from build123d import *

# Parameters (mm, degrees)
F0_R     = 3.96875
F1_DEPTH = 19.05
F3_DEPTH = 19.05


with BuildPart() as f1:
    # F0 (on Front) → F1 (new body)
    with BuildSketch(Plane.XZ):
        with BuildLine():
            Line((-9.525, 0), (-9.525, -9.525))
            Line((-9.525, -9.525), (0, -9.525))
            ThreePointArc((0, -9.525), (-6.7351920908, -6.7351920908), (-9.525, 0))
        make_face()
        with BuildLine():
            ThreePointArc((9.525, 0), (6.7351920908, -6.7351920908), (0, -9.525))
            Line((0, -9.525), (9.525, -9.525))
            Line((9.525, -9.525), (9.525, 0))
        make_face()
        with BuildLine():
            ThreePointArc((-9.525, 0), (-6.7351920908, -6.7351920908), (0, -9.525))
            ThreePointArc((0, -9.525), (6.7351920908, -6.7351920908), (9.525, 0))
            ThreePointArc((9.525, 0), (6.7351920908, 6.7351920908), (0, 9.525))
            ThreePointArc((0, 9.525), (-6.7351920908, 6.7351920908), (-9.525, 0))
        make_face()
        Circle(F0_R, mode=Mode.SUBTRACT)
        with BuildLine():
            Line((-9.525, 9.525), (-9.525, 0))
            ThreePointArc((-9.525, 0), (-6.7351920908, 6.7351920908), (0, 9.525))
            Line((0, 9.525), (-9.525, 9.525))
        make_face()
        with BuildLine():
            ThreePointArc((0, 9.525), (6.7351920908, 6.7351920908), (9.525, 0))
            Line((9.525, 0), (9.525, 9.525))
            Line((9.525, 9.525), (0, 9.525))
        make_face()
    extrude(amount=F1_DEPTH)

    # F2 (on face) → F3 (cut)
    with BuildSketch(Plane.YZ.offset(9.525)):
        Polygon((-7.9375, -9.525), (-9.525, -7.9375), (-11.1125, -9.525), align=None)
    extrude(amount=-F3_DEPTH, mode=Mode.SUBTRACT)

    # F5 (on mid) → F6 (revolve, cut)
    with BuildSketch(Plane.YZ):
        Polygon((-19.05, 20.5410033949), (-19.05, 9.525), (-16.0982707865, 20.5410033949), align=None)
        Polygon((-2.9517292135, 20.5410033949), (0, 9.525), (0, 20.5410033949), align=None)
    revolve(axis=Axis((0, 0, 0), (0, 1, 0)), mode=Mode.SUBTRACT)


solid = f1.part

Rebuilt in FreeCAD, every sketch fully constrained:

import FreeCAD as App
import Part
import Sketcher
from FreeCAD import Vector
Q = App.Units.Quantity


def add_polygon(sketch, points):
    """Adds a closed chain of lines whose ends are joined by coincident constraints."""
    first, n = sketch.GeometryCount, len(points)
    for a, b in zip(points, points[1:] + points[:1]):
        sketch.addGeometry(Part.LineSegment(App.Vector(*a, 0), App.Vector(*b, 0)), False)
    for i in range(n):
        sketch.addConstraint(Sketcher.Constraint("Coincident", first + i, 2, first + (i + 1) % n, 1))

doc = App.newDocument("Part")
body = doc.addObject("PartDesign::Body", "Body")

sketch1 = body.newObject("Sketcher::SketchObject", "Sketch")
sketch1.AttachmentSupport = (doc.getObject("XZ_Plane"), [""])
sketch1.MapMode = "FlatFace"
add_polygon(sketch1, [(-9.5, -9.5), (9.5, -9.5), (9.5, 9.5), (-9.5, 9.5)])
sketch1.addGeometry(Part.Circle(Vector(0, 0, 0), Vector(0, 0, 1), 4), False)
sketch1.addConstraint([
    Sketcher.Constraint("Horizontal", 0),
    Sketcher.Constraint("Vertical", 1),
    Sketcher.Constraint("Horizontal", 2),
    Sketcher.Constraint("Vertical", 3),
    Sketcher.Constraint("Coincident", 4, 3, -1, 1),
    Sketcher.Constraint("Symmetric", 0, 2, 2, 2, -1, 1),
    Sketcher.Constraint("Equal", 2, 1),
    Sketcher.Constraint("Diameter", 4, Q("0.3125 in")),
    Sketcher.Constraint("DistanceX", 0, 1, 0, 2, Q("0.75 in")),
])
pad1 = body.newObject("PartDesign::Pad", "Pad")
pad1.Profile = sketch1
pad1.Length = Q("0.75 in")

sketch2 = body.newObject("Sketcher::SketchObject", "Sketch001")
sketch2.AttachmentSupport = (doc.getObject("YZ_Plane"), [""])
sketch2.MapMode = "FlatFace"
sketch2.AttachmentOffset = App.Placement(Vector(0, 0, 0.375 * 25.4), App.Rotation())
add_polygon(sketch2, [(-7.9, -9.5), (-9.5, -7.9), (-11.1, -9.5)])
sketch2.addConstraint([
    Sketcher.Constraint("Horizontal", 2),
    Sketcher.Constraint("Perpendicular", 0, 1),
    Sketcher.Constraint("Equal", 0, 1),
    Sketcher.Constraint("DistanceX", 2, 1, 2, 2, Q("0.125 in")),
    Sketcher.Constraint("DistanceX", 0, 2, -1, 1, Q("0.375 in")),
    Sketcher.Constraint("DistanceY", 0, 2, -1, 1, Q("0.3125 in")),
])
pocket1 = body.newObject("PartDesign::Pocket", "Pocket")
pocket1.Profile = sketch2
pocket1.Length = Q("0.75 in")

sketch3 = body.newObject("Sketcher::SketchObject", "Sketch002")
sketch3.AttachmentSupport = (doc.getObject("YZ_Plane"), [""])
sketch3.MapMode = "FlatFace"
add_polygon(sketch3, [(-19.1, 20.5), (-19.1, 9.5), (-16.1, 20.5)])
add_polygon(sketch3, [(-3, 20.5), (0, 9.5), (0, 20.5)])
sketch3.addConstraint([
    Sketcher.Constraint("Vertical", 0),
    Sketcher.Constraint("Horizontal", 2),
    Sketcher.Constraint("Vertical", 4),
    Sketcher.Constraint("Horizontal", 5),
    Sketcher.Constraint("PointOnObject", 3, 2, -2),
    Sketcher.Constraint("Horizontal", 0, 2, 3, 2),
    Sketcher.Constraint("Horizontal", 2, 2, 4, 2),
    Sketcher.Constraint("Equal", 2, 5),
    Sketcher.Constraint("Angle", 1, Q("75 deg")),
    Sketcher.Constraint("DistanceX", 0, 2, -1, 1, Q("0.75 in")),
    Sketcher.Constraint("DistanceY", -1, 1, 0, 2, Q("0.375 in")),
    Sketcher.Constraint("DistanceX", 2, 2, 2, 1, Q("2.951729 mm")),
])
groove = body.newObject("PartDesign::Groove", "Groove")
groove.Profile = sketch3
groove.ReferenceAxis = (sketch3, ["H_Axis"])
groove.Angle = 360

doc.recompute()
